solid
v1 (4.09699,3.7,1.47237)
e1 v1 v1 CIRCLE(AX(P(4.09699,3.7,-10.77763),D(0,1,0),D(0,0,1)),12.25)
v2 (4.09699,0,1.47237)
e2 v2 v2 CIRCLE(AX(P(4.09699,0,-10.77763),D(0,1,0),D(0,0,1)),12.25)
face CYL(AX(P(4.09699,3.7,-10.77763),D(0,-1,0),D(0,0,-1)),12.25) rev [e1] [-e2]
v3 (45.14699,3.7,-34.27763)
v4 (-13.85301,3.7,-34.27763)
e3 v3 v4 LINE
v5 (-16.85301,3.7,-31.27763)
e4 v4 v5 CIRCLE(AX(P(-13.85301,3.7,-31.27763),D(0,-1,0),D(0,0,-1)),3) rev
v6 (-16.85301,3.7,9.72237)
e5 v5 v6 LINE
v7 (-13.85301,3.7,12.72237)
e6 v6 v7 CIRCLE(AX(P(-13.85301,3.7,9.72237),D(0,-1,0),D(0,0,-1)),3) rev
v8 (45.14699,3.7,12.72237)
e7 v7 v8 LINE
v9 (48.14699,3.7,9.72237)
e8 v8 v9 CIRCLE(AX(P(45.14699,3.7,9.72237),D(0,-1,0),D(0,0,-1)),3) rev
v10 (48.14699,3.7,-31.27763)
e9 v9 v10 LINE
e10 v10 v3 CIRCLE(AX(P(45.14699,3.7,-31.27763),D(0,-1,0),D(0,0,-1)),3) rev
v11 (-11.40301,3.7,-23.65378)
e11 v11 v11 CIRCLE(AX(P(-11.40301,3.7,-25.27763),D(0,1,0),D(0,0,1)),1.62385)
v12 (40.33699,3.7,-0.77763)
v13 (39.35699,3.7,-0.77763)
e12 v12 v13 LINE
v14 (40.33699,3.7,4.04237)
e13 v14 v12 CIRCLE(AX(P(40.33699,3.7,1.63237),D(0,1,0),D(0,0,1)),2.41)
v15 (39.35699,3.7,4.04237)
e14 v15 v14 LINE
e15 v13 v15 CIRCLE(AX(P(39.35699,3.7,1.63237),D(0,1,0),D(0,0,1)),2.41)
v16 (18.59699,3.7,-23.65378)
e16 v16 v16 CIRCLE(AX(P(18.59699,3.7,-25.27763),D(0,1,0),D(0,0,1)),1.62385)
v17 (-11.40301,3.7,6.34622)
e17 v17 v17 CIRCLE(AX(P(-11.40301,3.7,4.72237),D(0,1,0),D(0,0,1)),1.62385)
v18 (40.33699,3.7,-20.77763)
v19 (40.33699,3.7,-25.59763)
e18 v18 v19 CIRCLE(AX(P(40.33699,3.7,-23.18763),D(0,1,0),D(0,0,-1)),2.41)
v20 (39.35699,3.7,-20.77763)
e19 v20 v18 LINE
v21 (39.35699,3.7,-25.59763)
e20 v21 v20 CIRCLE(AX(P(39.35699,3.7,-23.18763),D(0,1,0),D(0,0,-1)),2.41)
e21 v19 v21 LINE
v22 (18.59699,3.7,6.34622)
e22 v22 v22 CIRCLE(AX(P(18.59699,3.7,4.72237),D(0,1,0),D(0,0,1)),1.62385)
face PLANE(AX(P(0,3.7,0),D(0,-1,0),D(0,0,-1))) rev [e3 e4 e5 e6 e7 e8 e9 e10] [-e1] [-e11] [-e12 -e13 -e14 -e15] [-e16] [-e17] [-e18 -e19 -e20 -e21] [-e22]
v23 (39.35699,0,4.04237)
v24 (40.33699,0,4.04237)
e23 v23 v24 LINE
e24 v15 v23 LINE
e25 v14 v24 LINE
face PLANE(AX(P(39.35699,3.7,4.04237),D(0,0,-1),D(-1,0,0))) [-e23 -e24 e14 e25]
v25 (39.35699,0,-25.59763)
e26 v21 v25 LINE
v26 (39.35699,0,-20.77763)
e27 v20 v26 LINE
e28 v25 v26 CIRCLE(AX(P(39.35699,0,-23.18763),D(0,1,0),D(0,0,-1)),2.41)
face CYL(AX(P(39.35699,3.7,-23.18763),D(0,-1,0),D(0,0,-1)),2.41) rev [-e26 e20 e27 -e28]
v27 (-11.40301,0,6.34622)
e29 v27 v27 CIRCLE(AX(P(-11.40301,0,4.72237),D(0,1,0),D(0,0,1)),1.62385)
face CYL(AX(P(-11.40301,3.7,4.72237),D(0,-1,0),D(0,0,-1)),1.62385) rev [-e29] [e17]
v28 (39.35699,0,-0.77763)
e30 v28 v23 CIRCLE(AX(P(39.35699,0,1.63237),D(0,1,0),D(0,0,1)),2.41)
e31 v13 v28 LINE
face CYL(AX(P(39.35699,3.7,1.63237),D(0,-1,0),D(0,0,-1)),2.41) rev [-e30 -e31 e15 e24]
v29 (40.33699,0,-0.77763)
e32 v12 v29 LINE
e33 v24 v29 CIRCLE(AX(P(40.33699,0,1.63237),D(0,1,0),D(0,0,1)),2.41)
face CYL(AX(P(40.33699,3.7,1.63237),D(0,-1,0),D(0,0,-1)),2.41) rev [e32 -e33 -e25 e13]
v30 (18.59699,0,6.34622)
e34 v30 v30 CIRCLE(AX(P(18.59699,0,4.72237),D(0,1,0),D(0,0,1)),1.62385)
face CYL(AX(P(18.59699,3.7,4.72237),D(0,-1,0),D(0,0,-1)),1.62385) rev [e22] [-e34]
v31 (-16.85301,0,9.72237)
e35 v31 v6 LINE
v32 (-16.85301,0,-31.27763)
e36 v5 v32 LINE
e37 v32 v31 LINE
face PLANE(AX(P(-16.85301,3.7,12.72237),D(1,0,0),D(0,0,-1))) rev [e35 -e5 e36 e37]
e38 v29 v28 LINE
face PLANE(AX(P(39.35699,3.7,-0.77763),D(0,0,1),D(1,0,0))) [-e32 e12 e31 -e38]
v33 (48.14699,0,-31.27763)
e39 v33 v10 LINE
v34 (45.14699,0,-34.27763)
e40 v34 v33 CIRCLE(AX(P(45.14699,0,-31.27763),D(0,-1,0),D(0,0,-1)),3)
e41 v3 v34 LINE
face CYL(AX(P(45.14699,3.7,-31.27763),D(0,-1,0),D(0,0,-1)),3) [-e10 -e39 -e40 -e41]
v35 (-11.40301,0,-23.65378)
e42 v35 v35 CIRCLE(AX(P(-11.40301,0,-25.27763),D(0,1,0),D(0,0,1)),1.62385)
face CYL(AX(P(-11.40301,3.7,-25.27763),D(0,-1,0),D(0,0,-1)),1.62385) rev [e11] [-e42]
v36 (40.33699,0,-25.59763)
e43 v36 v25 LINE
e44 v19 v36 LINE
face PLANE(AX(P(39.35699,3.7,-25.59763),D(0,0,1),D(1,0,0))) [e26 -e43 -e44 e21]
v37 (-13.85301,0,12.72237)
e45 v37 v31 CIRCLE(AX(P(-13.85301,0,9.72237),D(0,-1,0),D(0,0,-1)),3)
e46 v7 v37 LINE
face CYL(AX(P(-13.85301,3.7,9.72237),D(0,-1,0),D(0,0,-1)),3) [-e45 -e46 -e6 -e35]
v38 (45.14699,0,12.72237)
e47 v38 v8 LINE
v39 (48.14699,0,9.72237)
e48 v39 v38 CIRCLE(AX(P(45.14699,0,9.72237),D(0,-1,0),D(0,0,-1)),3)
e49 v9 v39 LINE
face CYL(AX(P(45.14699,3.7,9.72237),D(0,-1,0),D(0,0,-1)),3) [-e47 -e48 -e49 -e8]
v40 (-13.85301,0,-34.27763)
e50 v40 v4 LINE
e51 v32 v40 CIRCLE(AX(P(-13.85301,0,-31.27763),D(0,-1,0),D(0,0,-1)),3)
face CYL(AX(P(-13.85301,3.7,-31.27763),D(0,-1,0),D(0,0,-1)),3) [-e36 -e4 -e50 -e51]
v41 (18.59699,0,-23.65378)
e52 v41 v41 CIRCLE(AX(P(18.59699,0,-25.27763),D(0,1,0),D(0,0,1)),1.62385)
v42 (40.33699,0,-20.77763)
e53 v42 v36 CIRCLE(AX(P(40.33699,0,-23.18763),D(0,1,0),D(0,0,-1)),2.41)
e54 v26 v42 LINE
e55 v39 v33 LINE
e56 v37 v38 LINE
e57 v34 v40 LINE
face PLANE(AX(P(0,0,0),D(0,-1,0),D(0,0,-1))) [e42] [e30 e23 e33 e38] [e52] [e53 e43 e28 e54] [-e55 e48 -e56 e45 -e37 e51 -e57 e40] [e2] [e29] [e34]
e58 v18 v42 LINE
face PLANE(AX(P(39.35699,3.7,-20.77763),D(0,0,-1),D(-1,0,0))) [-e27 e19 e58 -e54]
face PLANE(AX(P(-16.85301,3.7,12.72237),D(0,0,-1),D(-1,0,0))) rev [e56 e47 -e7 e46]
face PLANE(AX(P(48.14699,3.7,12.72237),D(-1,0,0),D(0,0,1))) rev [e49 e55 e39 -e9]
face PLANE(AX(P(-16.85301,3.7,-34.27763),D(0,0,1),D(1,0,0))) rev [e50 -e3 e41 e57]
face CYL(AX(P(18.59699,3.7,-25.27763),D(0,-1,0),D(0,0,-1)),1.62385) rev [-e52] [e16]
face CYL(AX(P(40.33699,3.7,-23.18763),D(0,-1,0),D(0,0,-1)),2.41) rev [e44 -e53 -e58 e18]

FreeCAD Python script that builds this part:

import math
import FreeCAD as App
import Part
import Sketcher
Q = App.Units.Quantity


def edges_at(feature, points):
    """Names of the edges that pass closest to the given points."""
    edges = feature.Shape.Edges
    near = lambda p: min(range(len(edges)), key=lambda i: edges[i].distToShape(Part.Vertex(*p))[0])
    return sorted({f"Edge{near(p) + 1}" for p in points})


def add_polygon(sketch, points):
    """Adds a closed chain of lines whose ends are joined by coincident constraints."""
    first, n = sketch.GeometryCount, len(points)
    for a, b in zip(points, points[1:] + points[:1]):
        sketch.addGeometry(Part.LineSegment(App.Vector(*a, 0), App.Vector(*b, 0)), False)
    for i in range(n):
        sketch.addConstraint(Sketcher.Constraint("Coincident", first + i, 2, first + (i + 1) % n, 1))

doc = App.newDocument("Part")
params = doc.addObject("Spreadsheet::Sheet", "Params")
for row, (alias, value) in enumerate([
    ("sketch1_diameter", "24.5 mm"),
    ("sketch1_width", "65 mm"),
    ("sketch1_height", "47 mm"),
    ("sketch1_radius", "2.41 mm"),
    ("sketch1_width2", "0.98 mm"),
    ("pad1_length", "3.7 mm"),
    ("fillet_radius", "3 mm"),
], start=1):
    params.set(f"A{row}", alias)
    params.set(f"B{row}", "=" + value)
    params.setAlias(f"B{row}", alias)

body = doc.addObject("PartDesign::Body", "Body")

# Sketch on XZ plane
sketch1 = body.newObject("Sketcher::SketchObject", "Sketch")
sketch1.AttachmentSupport = (doc.getObject("XZ_Plane"), [""])
sketch1.MapMode = "FlatFace"
add_polygon(sketch1, [(-16.9, -34.3), (-16.9, 12.7), (48.1, 12.7), (48.1, -34.3)])  # lines 0-3
sketch1.addGeometry(Part.Circle(App.Vector(-11.4, 4.7, 0), App.Vector(0, 0, 1), 1.6), False)  # 4
sketch1.addGeometry(Part.Circle(App.Vector(18.6, 4.7, 0), App.Vector(0, 0, 1), 1.6), False)  # 5
sketch1.addGeometry(Part.ArcOfCircle(Part.Circle(App.Vector(39.4, 1.6, 0), App.Vector(0, 0, 1), 2.4), math.radians(90), math.radians(270)), False)  # 6
sketch1.addGeometry(Part.LineSegment(App.Vector(39.4, -0.8, 0), App.Vector(40.3, -0.8, 0)), False)  # 7
sketch1.addGeometry(Part.ArcOfCircle(Part.Circle(App.Vector(40.3, 1.6, 0), App.Vector(0, 0, 1), 2.4), math.radians(-90), math.radians(90)), False)  # 8
sketch1.addGeometry(Part.LineSegment(App.Vector(40.3, 4, 0), App.Vector(39.4, 4, 0)), False)  # 9
sketch1.addGeometry(Part.Circle(App.Vector(4.1, -10.8, 0), App.Vector(0, 0, 1), 12.2), False)  # 10
sketch1.addGeometry(Part.Circle(App.Vector(-11.4, -25.3, 0), App.Vector(0, 0, 1), 1.6), False)  # 11
sketch1.addGeometry(Part.Circle(App.Vector(18.6, -25.3, 0), App.Vector(0, 0, 1), 1.6), False)  # 12
sketch1.addGeometry(Part.LineSegment(App.Vector(40.3, -20.8, 0), App.Vector(39.4, -20.8, 0)), False)  # 13
sketch1.addGeometry(Part.ArcOfCircle(Part.Circle(App.Vector(39.4, -23.2, 0), App.Vector(0, 0, 1), 2.4), math.radians(90), math.radians(270)), False)  # 14
sketch1.addGeometry(Part.LineSegment(App.Vector(39.4, -25.6, 0), App.Vector(40.3, -25.6, 0)), False)  # 15
sketch1.addGeometry(Part.ArcOfCircle(Part.Circle(App.Vector(40.3, -23.2, 0), App.Vector(0, 0, 1), 2.4), math.radians(-90), math.radians(90)), False)  # 16
sketch1.addConstraint([
    Sketcher.Constraint("Tangent", 6, 2, 7, 1),
    Sketcher.Constraint("Tangent", 7, 2, 8, 1),
    Sketcher.Constraint("Tangent", 8, 2, 9, 1),
    Sketcher.Constraint("Tangent", 9, 2, 6, 1),
    Sketcher.Constraint("Tangent", 13, 2, 14, 1),
    Sketcher.Constraint("Tangent", 14, 2, 15, 1),
    Sketcher.Constraint("Tangent", 15, 2, 16, 1),
    Sketcher.Constraint("Tangent", 16, 2, 13, 1),
    Sketcher.Constraint("Vertical", 0),
    Sketcher.Constraint("Horizontal", 1),
    Sketcher.Constraint("Vertical", 2),
    Sketcher.Constraint("Horizontal", 3),
    Sketcher.Constraint("Horizontal", 7),
    Sketcher.Constraint("Horizontal", 9),
    Sketcher.Constraint("Horizontal", 13),
    Sketcher.Constraint("Horizontal", 15),
    Sketcher.Constraint("Equal", 4, 5),
    Sketcher.Constraint("Equal", 5, 11),
    Sketcher.Constraint("Equal", 11, 12),
    Sketcher.Constraint("Equal", 8, 14),
    Sketcher.Constraint("Horizontal", 4, 3, 5, 3),
    Sketcher.Constraint("Horizontal", 11, 3, 12, 3),
    Sketcher.Constraint("Vertical", 4, 3, 11, 3),
    Sketcher.Constraint("Vertical", 5, 3, 12, 3),
    Sketcher.Constraint("Vertical", 6, 3, 14, 3),
    Sketcher.Constraint("Vertical", 8, 3, 16, 3),
    Sketcher.Constraint("Diameter", 10, Q("24.5 mm")),
    Sketcher.Constraint("DistanceX", 1, 1, 1, 2, Q("65 mm")),
    Sketcher.Constraint("DistanceY", 0, 1, 0, 2, Q("47 mm")),
    Sketcher.Constraint("Radius", 6, Q("2.41 mm")),
    Sketcher.Constraint("DistanceX", 4, 3, 5, 3, Q("30 mm")),
    Sketcher.Constraint("DistanceY", 11, 3, 4, 3, Q("30 mm")),
    Sketcher.Constraint("DistanceY", 4, 3, 0, 2, Q("8 mm")),
    Sketcher.Constraint("DistanceY", 13, 2, 6, 2, Q("20 mm")),
    Sketcher.Constraint("Diameter", 4, Q("3.2477 mm")),
    Sketcher.Constraint("DistanceX", 7, 1, 7, 2, Q("0.98 mm")),
    Sketcher.Constraint("DistanceX", 10, 3, 5, 3, Q("14.5 mm")),
    Sketcher.Constraint("DistanceY", 10, 3, 5, 3, Q("15.5 mm")),
    Sketcher.Constraint("DistanceY", 6, 2, 1, 2, Q("13.5 mm")),
    Sketcher.Constraint("DistanceX", 5, 3, 6, 3, Q("20.76 mm")),
    Sketcher.Constraint("DistanceX", 0, 2, 4, 3, Q("5.45 mm")),
    Sketcher.Constraint("DistanceX", 4, 3, -1, 1, Q("11.40301 mm")),
    Sketcher.Constraint("DistanceY", -1, 1, 4, 3, Q("4.72237 mm")),
])
sketch1.setExpression("Constraints[30]", "Params.sketch1_diameter")
sketch1.setExpression("Constraints[31]", "Params.sketch1_width")
sketch1.setExpression("Constraints[32]", "Params.sketch1_height")
sketch1.setExpression("Constraints[33]", "Params.sketch1_radius")
sketch1.setExpression("Constraints[39]", "Params.sketch1_width2")
pad1 = body.newObject("PartDesign::Pad", "Pad")
pad1.Profile = sketch1
pad1.setExpression("Length", "Params.pad1_length")
pad1.Reversed = True
doc.recompute()

fillet = body.newObject("PartDesign::Fillet", "Fillet")
fillet.Base = (pad1, edges_at(pad1, [
    (-16.853, 1.85, -34.278),
    (48.147, 1.85, -34.278),
    (48.147, 1.85, 12.722),
    (-16.853, 1.85, 12.722),
]))
fillet.setExpression("Radius", "Params.fillet_radius")

doc.recompute()
